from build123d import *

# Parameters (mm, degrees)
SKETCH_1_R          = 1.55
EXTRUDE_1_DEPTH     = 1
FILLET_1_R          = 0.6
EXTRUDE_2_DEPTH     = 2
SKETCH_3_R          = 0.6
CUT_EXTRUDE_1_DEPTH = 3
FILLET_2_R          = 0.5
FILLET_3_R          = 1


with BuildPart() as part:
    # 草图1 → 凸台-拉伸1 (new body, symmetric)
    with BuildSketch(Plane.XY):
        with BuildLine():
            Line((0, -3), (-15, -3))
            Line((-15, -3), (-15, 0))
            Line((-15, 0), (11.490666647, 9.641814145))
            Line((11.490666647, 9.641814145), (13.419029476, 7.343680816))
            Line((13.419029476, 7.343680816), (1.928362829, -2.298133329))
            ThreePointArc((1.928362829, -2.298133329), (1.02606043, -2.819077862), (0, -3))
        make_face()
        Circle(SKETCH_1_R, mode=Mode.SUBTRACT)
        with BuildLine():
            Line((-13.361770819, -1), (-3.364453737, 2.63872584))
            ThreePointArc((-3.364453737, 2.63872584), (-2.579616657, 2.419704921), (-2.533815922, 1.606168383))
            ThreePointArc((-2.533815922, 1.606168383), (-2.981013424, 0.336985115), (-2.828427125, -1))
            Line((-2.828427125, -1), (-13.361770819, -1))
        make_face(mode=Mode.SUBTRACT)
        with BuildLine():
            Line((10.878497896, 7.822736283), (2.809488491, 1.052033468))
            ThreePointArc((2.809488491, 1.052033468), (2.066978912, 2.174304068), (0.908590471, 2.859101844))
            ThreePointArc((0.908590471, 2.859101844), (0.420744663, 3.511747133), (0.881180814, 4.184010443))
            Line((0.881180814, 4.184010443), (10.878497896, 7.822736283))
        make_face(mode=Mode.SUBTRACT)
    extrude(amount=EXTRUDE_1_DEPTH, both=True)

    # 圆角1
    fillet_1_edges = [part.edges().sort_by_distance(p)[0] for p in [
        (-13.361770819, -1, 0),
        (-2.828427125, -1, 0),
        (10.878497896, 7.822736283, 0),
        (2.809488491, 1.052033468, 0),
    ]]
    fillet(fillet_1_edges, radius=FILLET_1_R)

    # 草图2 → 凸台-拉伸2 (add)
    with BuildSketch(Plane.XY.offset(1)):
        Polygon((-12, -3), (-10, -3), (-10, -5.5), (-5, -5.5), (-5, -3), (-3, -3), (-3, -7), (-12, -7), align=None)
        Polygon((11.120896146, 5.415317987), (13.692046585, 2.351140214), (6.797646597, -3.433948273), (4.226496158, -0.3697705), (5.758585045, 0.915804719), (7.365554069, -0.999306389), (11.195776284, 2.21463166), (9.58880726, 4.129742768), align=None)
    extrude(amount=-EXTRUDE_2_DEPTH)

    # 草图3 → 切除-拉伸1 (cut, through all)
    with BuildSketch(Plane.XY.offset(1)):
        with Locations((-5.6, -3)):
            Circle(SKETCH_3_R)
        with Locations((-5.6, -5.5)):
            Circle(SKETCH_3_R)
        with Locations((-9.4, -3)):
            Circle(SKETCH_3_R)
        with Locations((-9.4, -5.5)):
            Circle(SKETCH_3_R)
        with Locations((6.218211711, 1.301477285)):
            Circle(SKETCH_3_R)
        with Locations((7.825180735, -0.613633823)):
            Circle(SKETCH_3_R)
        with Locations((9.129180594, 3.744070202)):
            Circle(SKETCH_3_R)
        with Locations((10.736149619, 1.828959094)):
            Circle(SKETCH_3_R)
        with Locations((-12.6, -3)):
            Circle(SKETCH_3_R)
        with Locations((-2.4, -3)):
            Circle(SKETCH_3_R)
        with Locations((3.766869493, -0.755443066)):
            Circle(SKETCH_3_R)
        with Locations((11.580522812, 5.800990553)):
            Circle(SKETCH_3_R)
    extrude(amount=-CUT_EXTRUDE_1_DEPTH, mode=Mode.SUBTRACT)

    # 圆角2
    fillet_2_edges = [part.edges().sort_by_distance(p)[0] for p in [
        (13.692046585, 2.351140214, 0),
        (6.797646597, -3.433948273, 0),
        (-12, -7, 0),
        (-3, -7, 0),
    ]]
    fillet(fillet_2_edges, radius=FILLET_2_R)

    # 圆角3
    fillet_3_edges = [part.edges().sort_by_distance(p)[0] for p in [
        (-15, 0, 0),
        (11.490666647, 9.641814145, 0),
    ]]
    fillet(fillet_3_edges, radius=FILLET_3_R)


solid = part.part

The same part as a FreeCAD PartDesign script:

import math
import FreeCAD as App
import Part
import Sketcher
Q = App.Units.Quantity


def edges_at(feature, points):
    """Names of the edges that pass closest to the given points."""
    edges = feature.Shape.Edges
    near = lambda p: min(range(len(edges)), key=lambda i: edges[i].distToShape(Part.Vertex(*p))[0])
    return sorted({f"Edge{near(p) + 1}" for p in points})


def add_polygon(sketch, points):
    """Adds a closed chain of lines whose ends are joined by coincident constraints."""
    first, n = sketch.GeometryCount, len(points)
    for a, b in zip(points, points[1:] + points[:1]):
        sketch.addGeometry(Part.LineSegment(App.Vector(*a, 0), App.Vector(*b, 0)), False)
    for i in range(n):
        sketch.addConstraint(Sketcher.Constraint("Coincident", first + i, 2, first + (i + 1) % n, 1))

doc = App.newDocument("Part")
body = doc.addObject("PartDesign::Body", "Body")

# Sketch on XY plane
sketch1 = body.newObject("Sketcher::SketchObject", "Sketch")
sketch1.AttachmentSupport = (doc.getObject("XY_Plane"), [""])
sketch1.MapMode = "FlatFace"
sketch1.addGeometry(Part.LineSegment(App.Vector(-15, -3, 0), App.Vector(0, -3, 0)), False)
sketch1.addGeometry(Part.ArcOfCircle(Part.Circle(App.Vector(0, 0, 0), App.Vector(0, 0, 1), 3), math.radians(-90), math.radians(-50)), False)
sketch1.addGeometry(Part.LineSegment(App.Vector(1.9, -2.3, 0), App.Vector(13.4, 7.3, 0)), False)
sketch1.addGeometry(Part.LineSegment(App.Vector(13.4, 7.3, 0), App.Vector(11.5, 9.6, 0)), False)
sketch1.addGeometry(Part.LineSegment(App.Vector(11.5, 9.6, 0), App.Vector(-15, 0, 0)), False)
sketch1.addGeometry(Part.LineSegment(App.Vector(-15, 0, 0), App.Vector(-15, -3, 0)), False)
sketch1.addGeometry(Part.Circle(App.Vector(0, 0, 0), App.Vector(0, 0, 1), 1.6), False)
sketch1.addGeometry(Part.LineSegment(App.Vector(-13.4, -1, 0), App.Vector(-3.4, 2.6, 0)), False)
sketch1.addGeometry(Part.ArcOfCircle(Part.Circle(App.Vector(-3.1, 2, 0), App.Vector(0, 0, 1), 0.7), math.radians(-32), math.radians(110)), False)
sketch1.addGeometry(Part.ArcOfCircle(Part.Circle(App.Vector(0, 0, 0), App.Vector(0, 0, 1), 3), math.radians(148), math.radians(199)), False)
sketch1.addGeometry(Part.LineSegment(App.Vector(-2.8, -1, 0), App.Vector(-13.4, -1, 0)), False)
sketch1.addGeometry(Part.LineSegment(App.Vector(10.9, 7.8, 0), App.Vector(2.8, 1.1, 0)), False)
sketch1.addGeometry(Part.ArcOfCircle(Part.Circle(App.Vector(0, 0, 0), App.Vector(0, 0, 1), 3), math.radians(21), math.radians(72)), False)
sketch1.addGeometry(Part.ArcOfCircle(Part.Circle(App.Vector(1.1, 3.5, 0), App.Vector(0, 0, 1), 0.7), math.radians(110), math.radians(252)), False)
sketch1.addGeometry(Part.LineSegment(App.Vector(0.9, 4.2, 0), App.Vector(10.9, 7.8, 0)), False)
sketch1.addConstraint(Sketcher.Constraint("Tangent", 0, 2, 1, 1))
sketch1.addConstraint(Sketcher.Constraint("Tangent", 1, 2, 2, 1))
sketch1.addConstraint(Sketcher.Constraint("Coincident", 2, 2, 3, 1))
sketch1.addConstraint(Sketcher.Constraint("Coincident", 3, 2, 4, 1))
sketch1.addConstraint(Sketcher.Constraint("Coincident", 4, 2, 5, 1))
sketch1.addConstraint(Sketcher.Constraint("Coincident", 5, 2, 0, 1))
sketch1.addConstraint(Sketcher.Constraint("Tangent", 7, 2, 8, 2))
sketch1.addConstraint(Sketcher.Constraint("Tangent", 8, 1, 9, 1))
sketch1.addConstraint(Sketcher.Constraint("Coincident", 9, 2, 10, 1))
sketch1.addConstraint(Sketcher.Constraint("Coincident", 10, 2, 7, 1))
sketch1.addConstraint(Sketcher.Constraint("Coincident", 11, 2, 12, 1))
sketch1.addConstraint(Sketcher.Constraint("Tangent", 12, 2, 13, 2))
sketch1.addConstraint(Sketcher.Constraint("Tangent", 13, 1, 14, 1))
sketch1.addConstraint(Sketcher.Constraint("Coincident", 14, 2, 11, 1))
sketch1.addConstraint(Sketcher.Constraint("Horizontal", 0))
sketch1.addConstraint(Sketcher.Constraint("Vertical", 5))
sketch1.addConstraint(Sketcher.Constraint("Horizontal", 10))
sketch1.addConstraint(Sketcher.Constraint("Coincident", 1, 3, -1, 1))
sketch1.addConstraint(Sketcher.Constraint("Coincident", 6, 3, -1, 1))
sketch1.addConstraint(Sketcher.Constraint("Coincident", 9, 3, -1, 1))
sketch1.addConstraint(Sketcher.Constraint("Coincident", 12, 3, -1, 1))
sketch1.addConstraint(Sketcher.Constraint("Equal", 1, 9))
sketch1.addConstraint(Sketcher.Constraint("Equal", 9, 12))
sketch1.addConstraint(Sketcher.Constraint("Equal", 8, 13))
sketch1.addConstraint(Sketcher.Constraint("PointOnObject", 4, 2, -1))
sketch1.addConstraint(Sketcher.Constraint("Perpendicular", 2, 3))
sketch1.addConstraint(Sketcher.Constraint("Parallel", 4, 7))
sketch1.addConstraint(Sketcher.Constraint("Perpendicular", 3, 11))
sketch1.addConstraint(Sketcher.Constraint("Parallel", 7, 14))
sketch1.addConstraint(Sketcher.Constraint("Equal", 7, 14))
sketch1.addConstraint(Sketcher.Constraint("Radius", 1, Q("3 mm")))
sketch1.addConstraint(Sketcher.Constraint("Diameter", 6, Q("3.1 mm")))
sketch1.addConstraint(Sketcher.Constraint("Radius", 8, Q("0.7 mm")))
sketch1.addConstraint(Sketcher.Constraint("DistanceX", 0, 1, 0, 2, Q("15 mm")))
sketch1.addConstraint(Sketcher.Constraint("Angle", 2, Q("40 deg")))
sketch1.addConstraint(Sketcher.Constraint("Angle", 4, Q("-160 deg")))
sketch1.addConstraint(Sketcher.Constraint("Distance", 2, Q("15 mm")))
sketch1.addConstraint(Sketcher.Constraint("DistanceY", 9, 2, -1, 1, Q("1 mm")))
sketch1.addConstraint(Sketcher.Constraint("DistanceY", -1, 1, 12, 2, Q("2.859102 mm")))
sketch1.addConstraint(Sketcher.Constraint("DistanceX", 12, 2, 11, 2, Q("1.900898 mm")))
pad1 = body.newObject("PartDesign::Pad", "Pad")
pad1.Profile = sketch1
pad1.Length = 2
pad1.Midplane = True
doc.recompute()

fillet = body.newObject("PartDesign::Fillet", "Fillet")
fillet.Base = (pad1, edges_at(pad1, [
    (-13.362, -1, 0),
    (-2.828, -1, 0),
    (10.878, 7.823, 0),
    (2.809, 1.052, 0),
]))
fillet.Radius = 0.6

# Sketch on XY plane
sketch2 = body.newObject("Sketcher::SketchObject", "Sketch001")
sketch2.AttachmentSupport = (doc.getObject("XY_Plane"), [""])
sketch2.MapMode = "FlatFace"
sketch2.AttachmentOffset = App.Placement(App.Vector(0, 0, 1), App.Rotation())
add_polygon(sketch2, [(-10, -3), (-12, -3), (-12, -7), (-3, -7), (-3, -3), (-5, -3), (-5, -5.5), (-10, -5.5)])  # lines 0-7
add_polygon(sketch2, [(13.7, 2.4), (11.1, 5.4), (9.6, 4.1), (11.2, 2.2), (7.4, -1), (5.8, 0.9), (4.2, -0.4), (6.8, -3.4)])  # lines 8-15
sketch2.addConstraint(Sketcher.Constraint("Horizontal", 0))
sketch2.addConstraint(Sketcher.Constraint("Vertical", 1))
sketch2.addConstraint(Sketcher.Constraint("Horizontal", 2))
sketch2.addConstraint(Sketcher.Constraint("Vertical", 3))
sketch2.addConstraint(Sketcher.Constraint("Horizontal", 4))
sketch2.addConstraint(Sketcher.Constraint("Vertical", 5))
sketch2.addConstraint(Sketcher.Constraint("Horizontal", 6))
sketch2.addConstraint(Sketcher.Constraint("Vertical", 7))
sketch2.addConstraint(Sketcher.Constraint("Perpendicular", 8, 9))
sketch2.addConstraint(Sketcher.Constraint("Perpendicular", 9, 10))
sketch2.addConstraint(Sketcher.Constraint("Perpendicular", 10, 11))
sketch2.addConstraint(Sketcher.Constraint("Perpendicular", 11, 12))
sketch2.addConstraint(Sketcher.Constraint("Perpendicular", 12, 13))
sketch2.addConstraint(Sketcher.Constraint("Perpendicular", 13, 14))
sketch2.addConstraint(Sketcher.Constraint("Perpendicular", 14, 15))
sketch2.addConstraint(Sketcher.Constraint("Horizontal", 0, 2, 3, 2))
sketch2.addConstraint(Sketcher.Constraint("Equal", 0, 4))
sketch2.addConstraint(Sketcher.Constraint("Equal", 10, 12))
sketch2.addConstraint(Sketcher.Constraint("Equal", 9, 13))
sketch2.addConstraint(Sketcher.Constraint("DistanceX", 0, 2, 0, 1, Q("2 mm")))
sketch2.addConstraint(Sketcher.Constraint("DistanceX", 2, 1, 2, 2, Q("9 mm")))
sketch2.addConstraint(Sketcher.Constraint("DistanceY", 1, 2, 1, 1, Q("4 mm")))
sketch2.addConstraint(Sketcher.Constraint("Angle", 8, Q("130 deg")))
sketch2.addConstraint(Sketcher.Constraint("Distance", 8, Q("4 mm")))
sketch2.addConstraint(Sketcher.Constraint("Distance", 9, Q("2 mm")))
sketch2.addConstraint(Sketcher.Constraint("Distance", 11, Q("5 mm")))
sketch2.addConstraint(Sketcher.Constraint("DistanceY", 5, 2, 5, 1, Q("2.5 mm")))
sketch2.addConstraint(Sketcher.Constraint("DistanceX", 0, 2, -1, 1, Q("12 mm")))
sketch2.addConstraint(Sketcher.Constraint("DistanceY", 0, 2, -1, 1, Q("3 mm")))
sketch2.addConstraint(Sketcher.Constraint("Distance", 10, Q("2.5 mm")))
sketch2.addConstraint(Sketcher.Constraint("DistanceY", -1, 1, 10, 2, Q("2.214632 mm")))
sketch2.addConstraint(Sketcher.Constraint("DistanceX", -1, 1, 8, 2, Q("11.120896 mm")))
pad2 = body.newObject("PartDesign::Pad", "Pad001")
pad2.Profile = sketch2
pad2.Length = 2
pad2.Reversed = True

# Sketch on XY plane
sketch3 = body.newObject("Sketcher::SketchObject", "Sketch002")
sketch3.AttachmentSupport = (doc.getObject("XY_Plane"), [""])
sketch3.MapMode = "FlatFace"
sketch3.AttachmentOffset = App.Placement(App.Vector(0, 0, 1), App.Rotation())
sketch3.addGeometry(Part.Circle(App.Vector(-5.6, -3, 0), App.Vector(0, 0, 1), 0.6), False)
sketch3.addGeometry(Part.Circle(App.Vector(-5.6, -5.5, 0), App.Vector(0, 0, 1), 0.6), False)
sketch3.addGeometry(Part.Circle(App.Vector(-9.4, -3, 0), App.Vector(0, 0, 1), 0.6), False)
sketch3.addGeometry(Part.Circle(App.Vector(-9.4, -5.5, 0), App.Vector(0, 0, 1), 0.6), False)
sketch3.addGeometry(Part.Circle(App.Vector(6.2, 1.3, 0), App.Vector(0, 0, 1), 0.6), False)
sketch3.addGeometry(Part.Circle(App.Vector(7.8, -0.6, 0), App.Vector(0, 0, 1), 0.6), False)
sketch3.addGeometry(Part.Circle(App.Vector(9.1, 3.7, 0), App.Vector(0, 0, 1), 0.6), False)
sketch3.addGeometry(Part.Circle(App.Vector(10.7, 1.8, 0), App.Vector(0, 0, 1), 0.6), False)
sketch3.addGeometry(Part.Circle(App.Vector(-12.6, -3, 0), App.Vector(0, 0, 1), 0.6), False)
sketch3.addGeometry(Part.Circle(App.Vector(-2.4, -3, 0), App.Vector(0, 0, 1), 0.6), False)
sketch3.addGeometry(Part.Circle(App.Vector(3.8, -0.8, 0), App.Vector(0, 0, 1), 0.6), False)
sketch3.addGeometry(Part.Circle(App.Vector(11.6, 5.8, 0), App.Vector(0, 0, 1), 0.6), False)
sketch3.addConstraint(Sketcher.Constraint("Equal", 0, 1))
sketch3.addConstraint(Sketcher.Constraint("Equal", 1, 2))
sketch3.addConstraint(Sketcher.Constraint("Equal", 2, 3))
sketch3.addConstraint(Sketcher.Constraint("Equal", 3, 4))
sketch3.addConstraint(Sketcher.Constraint("Equal", 4, 5))
sketch3.addConstraint(Sketcher.Constraint("Equal", 5, 6))
sketch3.addConstraint(Sketcher.Constraint("Equal", 6, 7))
sketch3.addConstraint(Sketcher.Constraint("Equal", 7, 8))
sketch3.addConstraint(Sketcher.Constraint("Equal", 8, 9))
sketch3.addConstraint(Sketcher.Constraint("Equal", 9, 10))
sketch3.addConstraint(Sketcher.Constraint("Equal", 10, 11))
sketch3.addConstraint(Sketcher.Constraint("Horizontal", 0, 3, 2, 3))
sketch3.addConstraint(Sketcher.Constraint("Horizontal", 1, 3, 3, 3))
sketch3.addConstraint(Sketcher.Constraint("Horizontal", 2, 3, 8, 3))
sketch3.addConstraint(Sketcher.Constraint("Horizontal", 8, 3, 9, 3))
sketch3.addConstraint(Sketcher.Constraint("Vertical", 0, 3, 1, 3))
sketch3.addConstraint(Sketcher.Constraint("Vertical", 2, 3, 3, 3))
sketch3.addConstraint(Sketcher.Constraint("Diameter", 0, Q("1.2 mm")))
sketch3.addConstraint(Sketcher.Constraint("DistanceY", 0, 3, -1, 1, Q("3 mm")))
sketch3.addConstraint(Sketcher.Constraint("DistanceX", 8, 3, 0, 3, Q("7 mm")))
sketch3.addConstraint(Sketcher.Constraint("DistanceX", 2, 3, 9, 3, Q("7 mm")))
sketch3.addConstraint(Sketcher.Constraint("DistanceX", 0, 3, -1, 1, Q("5.6 mm")))
sketch3.addConstraint(Sketcher.Constraint("DistanceY", 1, 3, -1, 1, Q("5.5 mm")))
sketch3.addConstraint(Sketcher.Constraint("DistanceX", 2, 3, -1, 1, Q("9.4 mm")))
sketch3.addConstraint(Sketcher.Constraint("DistanceX", 5, 3, 6, 3, Q("1.304 mm")))
sketch3.addConstraint(Sketcher.Constraint("DistanceX", -1, 1, 4, 3, Q("6.218212 mm")))
sketch3.addConstraint(Sketcher.Constraint("DistanceX", -1, 1, 5, 3, Q("7.825181 mm")))
sketch3.addConstraint(Sketcher.Constraint("DistanceY", -1, 1, 6, 3, Q("3.74407 mm")))
sketch3.addConstraint(Sketcher.Constraint("DistanceX", -1, 1, 7, 3, Q("10.73615 mm")))
sketch3.addConstraint(Sketcher.Constraint("DistanceY", -1, 1, 7, 3, Q("1.828959 mm")))
sketch3.addConstraint(Sketcher.Constraint("DistanceX", -1, 1, 10, 3, Q("3.766869 mm")))
sketch3.addConstraint(Sketcher.Constraint("DistanceY", -1, 1, 11, 3, Q("5.800991 mm")))
sketch3.addConstraint(Sketcher.Constraint("DistanceY", 5, 3, 4, 3, Q("1.915111 mm")))
sketch3.addConstraint(Sketcher.Constraint("DistanceY", 4, 3, 7, 3, Q("0.527482 mm")))
sketch3.addConstraint(Sketcher.Constraint("DistanceY", 10, 3, 4, 3, Q("2.05692 mm")))
sketch3.addConstraint(Sketcher.Constraint("DistanceX", 4, 3, 11, 3, Q("5.362311 mm")))
pocket1 = body.newObject("PartDesign::Pocket", "Pocket")
pocket1.Profile = sketch3
pocket1.Type = "ThroughAll"
doc.recompute()

fillet2 = body.newObject("PartDesign::Fillet", "Fillet001")
fillet2.Base = (pocket1, edges_at(pocket1, [
    (13.692, 2.351, 0),
    (6.798, -3.434, 0),
    (-12, -7, 0),
    (-3, -7, 0),
]))
fillet2.Radius = 0.5
doc.recompute()

fillet3 = body.newObject("PartDesign::Fillet", "Fillet002")
fillet3.Base = (fillet2, edges_at(fillet2, [(-15, 0, 0), (11.491, 9.642, 0)]))
fillet3.Radius = 1

doc.recompute()
